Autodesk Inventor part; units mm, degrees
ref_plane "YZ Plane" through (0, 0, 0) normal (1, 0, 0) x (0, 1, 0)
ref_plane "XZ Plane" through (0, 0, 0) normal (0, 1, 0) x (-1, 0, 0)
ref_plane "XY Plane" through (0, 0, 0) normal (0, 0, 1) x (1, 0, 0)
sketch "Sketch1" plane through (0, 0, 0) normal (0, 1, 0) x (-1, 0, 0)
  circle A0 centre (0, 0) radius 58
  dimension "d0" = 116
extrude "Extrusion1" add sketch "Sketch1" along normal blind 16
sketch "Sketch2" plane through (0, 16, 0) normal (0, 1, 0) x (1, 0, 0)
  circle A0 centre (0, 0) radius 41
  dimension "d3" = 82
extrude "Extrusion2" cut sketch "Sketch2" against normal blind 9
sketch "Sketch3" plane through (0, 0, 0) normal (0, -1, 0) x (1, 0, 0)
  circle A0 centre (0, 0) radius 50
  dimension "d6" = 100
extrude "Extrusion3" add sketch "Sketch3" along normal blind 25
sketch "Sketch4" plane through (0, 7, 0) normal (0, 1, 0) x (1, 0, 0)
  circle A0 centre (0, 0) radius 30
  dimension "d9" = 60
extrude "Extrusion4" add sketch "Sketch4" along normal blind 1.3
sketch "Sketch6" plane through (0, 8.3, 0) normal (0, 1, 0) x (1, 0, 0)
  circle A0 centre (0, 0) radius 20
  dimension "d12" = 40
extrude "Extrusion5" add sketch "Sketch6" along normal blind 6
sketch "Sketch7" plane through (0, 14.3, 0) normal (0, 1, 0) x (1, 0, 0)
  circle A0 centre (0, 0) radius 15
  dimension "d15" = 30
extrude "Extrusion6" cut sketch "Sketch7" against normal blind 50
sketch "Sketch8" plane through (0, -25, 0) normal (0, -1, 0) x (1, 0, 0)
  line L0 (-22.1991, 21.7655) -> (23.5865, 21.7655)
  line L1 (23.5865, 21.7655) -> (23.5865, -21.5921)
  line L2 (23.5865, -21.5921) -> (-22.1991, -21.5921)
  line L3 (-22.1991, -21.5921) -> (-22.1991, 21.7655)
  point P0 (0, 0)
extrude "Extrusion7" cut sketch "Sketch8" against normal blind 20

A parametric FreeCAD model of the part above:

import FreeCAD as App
import Part
import Sketcher
from FreeCAD import Vector
Q = App.Units.Quantity

doc = App.newDocument("Part")
body = doc.addObject("PartDesign::Body", "Body")

sketch1 = body.newObject("Sketcher::SketchObject", "Sketch")
sketch1.AttachmentSupport = (doc.getObject("XZ_Plane"), [""])
sketch1.MapMode = "FlatFace"
sketch1.addGeometry(Part.Circle(Vector(0, 0, 0), Vector(0, 0, 1), 58), False)
sketch1.addConstraint([
    Sketcher.Constraint("Coincident", 0, 3, -1, 1),
    Sketcher.Constraint("Diameter", 0, Q("116 mm")),
])
pad1 = body.newObject("PartDesign::Pad", "Pad")
pad1.Profile = sketch1
pad1.Length = 16
pad1.Reversed = True

sketch2 = body.newObject("Sketcher::SketchObject", "Sketch001")
sketch2.AttachmentSupport = (doc.getObject("XZ_Plane"), [""])
sketch2.MapMode = "FlatFace"
sketch2.AttachmentOffset = App.Placement(Vector(0, 0, -16), App.Rotation())
sketch2.addGeometry(Part.Circle(Vector(0, 0, 0), Vector(0, 0, 1), 41), False)
sketch2.addConstraint([
    Sketcher.Constraint("Coincident", 0, 3, -1, 1),
    Sketcher.Constraint("Diameter", 0, Q("82 mm")),
])
pocket1 = body.newObject("PartDesign::Pocket", "Pocket")
pocket1.Profile = sketch2
pocket1.Length = 9
pocket1.Reversed = True

sketch3 = body.newObject("Sketcher::SketchObject", "Sketch002")
sketch3.AttachmentSupport = (doc.getObject("XZ_Plane"), [""])
sketch3.MapMode = "FlatFace"
sketch3.addGeometry(Part.Circle(Vector(0, 0, 0), Vector(0, 0, 1), 50), False)
sketch3.addConstraint([
    Sketcher.Constraint("Coincident", 0, 3, -1, 1),
    Sketcher.Constraint("Diameter", 0, Q("100 mm")),
])
pad2 = body.newObject("PartDesign::Pad", "Pad001")
pad2.Profile = sketch3
pad2.Length = 25

sketch4 = body.newObject("Sketcher::SketchObject", "Sketch003")
sketch4.AttachmentSupport = (doc.getObject("XZ_Plane"), [""])
sketch4.MapMode = "FlatFace"
sketch4.AttachmentOffset = App.Placement(Vector(0, 0, -7), App.Rotation())
sketch4.addGeometry(Part.Circle(Vector(0, 0, 0), Vector(0, 0, 1), 30), False)
sketch4.addConstraint([
    Sketcher.Constraint("Coincident", 0, 3, -1, 1),
    Sketcher.Constraint("Diameter", 0, Q("60 mm")),
])
pad3 = body.newObject("PartDesign::Pad", "Pad002")
pad3.Profile = sketch4
pad3.Length = 1.3
pad3.Reversed = True

sketch5 = body.newObject("Sketcher::SketchObject", "Sketch004")
sketch5.AttachmentSupport = (doc.getObject("XZ_Plane"), [""])
sketch5.MapMode = "FlatFace"
sketch5.AttachmentOffset = App.Placement(Vector(0, 0, -8.3), App.Rotation())
sketch5.addGeometry(Part.Circle(Vector(0, 0, 0), Vector(0, 0, 1), 20), False)
sketch5.addConstraint([
    Sketcher.Constraint("Coincident", 0, 3, -1, 1),
    Sketcher.Constraint("Diameter", 0, Q("40 mm")),
])
pad4 = body.newObject("PartDesign::Pad", "Pad003")
pad4.Profile = sketch5
pad4.Length = 6
pad4.Reversed = True

sketch6 = body.newObject("Sketcher::SketchObject", "Sketch005")
sketch6.AttachmentSupport = (doc.getObject("XZ_Plane"), [""])
sketch6.MapMode = "FlatFace"
sketch6.AttachmentOffset = App.Placement(Vector(0, 0, -14.3), App.Rotation())
sketch6.addGeometry(Part.Circle(Vector(0, 0, 0), Vector(0, 0, 1), 15), False)
sketch6.addConstraint([
    Sketcher.Constraint("Coincident", 0, 3, -1, 1),
    Sketcher.Constraint("Diameter", 0, Q("30 mm")),
])
pocket2 = body.newObject("PartDesign::Pocket", "Pocket001")
pocket2.Profile = sketch6
pocket2.Length = 50
pocket2.Reversed = True

sketch7 = body.newObject("Sketcher::SketchObject", "Sketch006")
sketch7.AttachmentSupport = (doc.getObject("XZ_Plane"), [""])
sketch7.MapMode = "FlatFace"
sketch7.AttachmentOffset = App.Placement(Vector(0, 0, 25), App.Rotation())
sketch7.addGeometry([
    Part.LineSegment(Vector(24, 22, 0), Vector(-22, 22, 0)),
    Part.LineSegment(Vector(-22, 22, 0), Vector(-22, -22, 0)),
    Part.LineSegment(Vector(-22, -22, 0), Vector(24, -22, 0)),
    Part.LineSegment(Vector(24, -22, 0), Vector(24, 22, 0)),
], False)
sketch7.addConstraint([
    Sketcher.Constraint("Coincident", 0, 2, 1, 1),
    Sketcher.Constraint("Coincident", 1, 2, 2, 1),
    Sketcher.Constraint("Coincident", 2, 2, 3, 1),
    Sketcher.Constraint("Coincident", 3, 2, 0, 1),
    Sketcher.Constraint("Horizontal", 0),
    Sketcher.Constraint("Vertical", 1),
    Sketcher.Constraint("Horizontal", 2),
    Sketcher.Constraint("Vertical", 3),
    Sketcher.Constraint("DistanceX", 0, 2, 0, 1, Q("45.7856 mm")),
    Sketcher.Constraint("DistanceY", 1, 2, 1, 1, Q("43.3576 mm")),
    Sketcher.Constraint("DistanceX", 0, 2, -1, 1, Q("22.199 mm")),
    Sketcher.Constraint("DistanceY", 1, 2, -1, 1, Q("21.592 mm")),
])
pocket3 = body.newObject("PartDesign::Pocket", "Pocket002")
pocket3.Profile = sketch7
pocket3.Length = 20

doc.recompute()
